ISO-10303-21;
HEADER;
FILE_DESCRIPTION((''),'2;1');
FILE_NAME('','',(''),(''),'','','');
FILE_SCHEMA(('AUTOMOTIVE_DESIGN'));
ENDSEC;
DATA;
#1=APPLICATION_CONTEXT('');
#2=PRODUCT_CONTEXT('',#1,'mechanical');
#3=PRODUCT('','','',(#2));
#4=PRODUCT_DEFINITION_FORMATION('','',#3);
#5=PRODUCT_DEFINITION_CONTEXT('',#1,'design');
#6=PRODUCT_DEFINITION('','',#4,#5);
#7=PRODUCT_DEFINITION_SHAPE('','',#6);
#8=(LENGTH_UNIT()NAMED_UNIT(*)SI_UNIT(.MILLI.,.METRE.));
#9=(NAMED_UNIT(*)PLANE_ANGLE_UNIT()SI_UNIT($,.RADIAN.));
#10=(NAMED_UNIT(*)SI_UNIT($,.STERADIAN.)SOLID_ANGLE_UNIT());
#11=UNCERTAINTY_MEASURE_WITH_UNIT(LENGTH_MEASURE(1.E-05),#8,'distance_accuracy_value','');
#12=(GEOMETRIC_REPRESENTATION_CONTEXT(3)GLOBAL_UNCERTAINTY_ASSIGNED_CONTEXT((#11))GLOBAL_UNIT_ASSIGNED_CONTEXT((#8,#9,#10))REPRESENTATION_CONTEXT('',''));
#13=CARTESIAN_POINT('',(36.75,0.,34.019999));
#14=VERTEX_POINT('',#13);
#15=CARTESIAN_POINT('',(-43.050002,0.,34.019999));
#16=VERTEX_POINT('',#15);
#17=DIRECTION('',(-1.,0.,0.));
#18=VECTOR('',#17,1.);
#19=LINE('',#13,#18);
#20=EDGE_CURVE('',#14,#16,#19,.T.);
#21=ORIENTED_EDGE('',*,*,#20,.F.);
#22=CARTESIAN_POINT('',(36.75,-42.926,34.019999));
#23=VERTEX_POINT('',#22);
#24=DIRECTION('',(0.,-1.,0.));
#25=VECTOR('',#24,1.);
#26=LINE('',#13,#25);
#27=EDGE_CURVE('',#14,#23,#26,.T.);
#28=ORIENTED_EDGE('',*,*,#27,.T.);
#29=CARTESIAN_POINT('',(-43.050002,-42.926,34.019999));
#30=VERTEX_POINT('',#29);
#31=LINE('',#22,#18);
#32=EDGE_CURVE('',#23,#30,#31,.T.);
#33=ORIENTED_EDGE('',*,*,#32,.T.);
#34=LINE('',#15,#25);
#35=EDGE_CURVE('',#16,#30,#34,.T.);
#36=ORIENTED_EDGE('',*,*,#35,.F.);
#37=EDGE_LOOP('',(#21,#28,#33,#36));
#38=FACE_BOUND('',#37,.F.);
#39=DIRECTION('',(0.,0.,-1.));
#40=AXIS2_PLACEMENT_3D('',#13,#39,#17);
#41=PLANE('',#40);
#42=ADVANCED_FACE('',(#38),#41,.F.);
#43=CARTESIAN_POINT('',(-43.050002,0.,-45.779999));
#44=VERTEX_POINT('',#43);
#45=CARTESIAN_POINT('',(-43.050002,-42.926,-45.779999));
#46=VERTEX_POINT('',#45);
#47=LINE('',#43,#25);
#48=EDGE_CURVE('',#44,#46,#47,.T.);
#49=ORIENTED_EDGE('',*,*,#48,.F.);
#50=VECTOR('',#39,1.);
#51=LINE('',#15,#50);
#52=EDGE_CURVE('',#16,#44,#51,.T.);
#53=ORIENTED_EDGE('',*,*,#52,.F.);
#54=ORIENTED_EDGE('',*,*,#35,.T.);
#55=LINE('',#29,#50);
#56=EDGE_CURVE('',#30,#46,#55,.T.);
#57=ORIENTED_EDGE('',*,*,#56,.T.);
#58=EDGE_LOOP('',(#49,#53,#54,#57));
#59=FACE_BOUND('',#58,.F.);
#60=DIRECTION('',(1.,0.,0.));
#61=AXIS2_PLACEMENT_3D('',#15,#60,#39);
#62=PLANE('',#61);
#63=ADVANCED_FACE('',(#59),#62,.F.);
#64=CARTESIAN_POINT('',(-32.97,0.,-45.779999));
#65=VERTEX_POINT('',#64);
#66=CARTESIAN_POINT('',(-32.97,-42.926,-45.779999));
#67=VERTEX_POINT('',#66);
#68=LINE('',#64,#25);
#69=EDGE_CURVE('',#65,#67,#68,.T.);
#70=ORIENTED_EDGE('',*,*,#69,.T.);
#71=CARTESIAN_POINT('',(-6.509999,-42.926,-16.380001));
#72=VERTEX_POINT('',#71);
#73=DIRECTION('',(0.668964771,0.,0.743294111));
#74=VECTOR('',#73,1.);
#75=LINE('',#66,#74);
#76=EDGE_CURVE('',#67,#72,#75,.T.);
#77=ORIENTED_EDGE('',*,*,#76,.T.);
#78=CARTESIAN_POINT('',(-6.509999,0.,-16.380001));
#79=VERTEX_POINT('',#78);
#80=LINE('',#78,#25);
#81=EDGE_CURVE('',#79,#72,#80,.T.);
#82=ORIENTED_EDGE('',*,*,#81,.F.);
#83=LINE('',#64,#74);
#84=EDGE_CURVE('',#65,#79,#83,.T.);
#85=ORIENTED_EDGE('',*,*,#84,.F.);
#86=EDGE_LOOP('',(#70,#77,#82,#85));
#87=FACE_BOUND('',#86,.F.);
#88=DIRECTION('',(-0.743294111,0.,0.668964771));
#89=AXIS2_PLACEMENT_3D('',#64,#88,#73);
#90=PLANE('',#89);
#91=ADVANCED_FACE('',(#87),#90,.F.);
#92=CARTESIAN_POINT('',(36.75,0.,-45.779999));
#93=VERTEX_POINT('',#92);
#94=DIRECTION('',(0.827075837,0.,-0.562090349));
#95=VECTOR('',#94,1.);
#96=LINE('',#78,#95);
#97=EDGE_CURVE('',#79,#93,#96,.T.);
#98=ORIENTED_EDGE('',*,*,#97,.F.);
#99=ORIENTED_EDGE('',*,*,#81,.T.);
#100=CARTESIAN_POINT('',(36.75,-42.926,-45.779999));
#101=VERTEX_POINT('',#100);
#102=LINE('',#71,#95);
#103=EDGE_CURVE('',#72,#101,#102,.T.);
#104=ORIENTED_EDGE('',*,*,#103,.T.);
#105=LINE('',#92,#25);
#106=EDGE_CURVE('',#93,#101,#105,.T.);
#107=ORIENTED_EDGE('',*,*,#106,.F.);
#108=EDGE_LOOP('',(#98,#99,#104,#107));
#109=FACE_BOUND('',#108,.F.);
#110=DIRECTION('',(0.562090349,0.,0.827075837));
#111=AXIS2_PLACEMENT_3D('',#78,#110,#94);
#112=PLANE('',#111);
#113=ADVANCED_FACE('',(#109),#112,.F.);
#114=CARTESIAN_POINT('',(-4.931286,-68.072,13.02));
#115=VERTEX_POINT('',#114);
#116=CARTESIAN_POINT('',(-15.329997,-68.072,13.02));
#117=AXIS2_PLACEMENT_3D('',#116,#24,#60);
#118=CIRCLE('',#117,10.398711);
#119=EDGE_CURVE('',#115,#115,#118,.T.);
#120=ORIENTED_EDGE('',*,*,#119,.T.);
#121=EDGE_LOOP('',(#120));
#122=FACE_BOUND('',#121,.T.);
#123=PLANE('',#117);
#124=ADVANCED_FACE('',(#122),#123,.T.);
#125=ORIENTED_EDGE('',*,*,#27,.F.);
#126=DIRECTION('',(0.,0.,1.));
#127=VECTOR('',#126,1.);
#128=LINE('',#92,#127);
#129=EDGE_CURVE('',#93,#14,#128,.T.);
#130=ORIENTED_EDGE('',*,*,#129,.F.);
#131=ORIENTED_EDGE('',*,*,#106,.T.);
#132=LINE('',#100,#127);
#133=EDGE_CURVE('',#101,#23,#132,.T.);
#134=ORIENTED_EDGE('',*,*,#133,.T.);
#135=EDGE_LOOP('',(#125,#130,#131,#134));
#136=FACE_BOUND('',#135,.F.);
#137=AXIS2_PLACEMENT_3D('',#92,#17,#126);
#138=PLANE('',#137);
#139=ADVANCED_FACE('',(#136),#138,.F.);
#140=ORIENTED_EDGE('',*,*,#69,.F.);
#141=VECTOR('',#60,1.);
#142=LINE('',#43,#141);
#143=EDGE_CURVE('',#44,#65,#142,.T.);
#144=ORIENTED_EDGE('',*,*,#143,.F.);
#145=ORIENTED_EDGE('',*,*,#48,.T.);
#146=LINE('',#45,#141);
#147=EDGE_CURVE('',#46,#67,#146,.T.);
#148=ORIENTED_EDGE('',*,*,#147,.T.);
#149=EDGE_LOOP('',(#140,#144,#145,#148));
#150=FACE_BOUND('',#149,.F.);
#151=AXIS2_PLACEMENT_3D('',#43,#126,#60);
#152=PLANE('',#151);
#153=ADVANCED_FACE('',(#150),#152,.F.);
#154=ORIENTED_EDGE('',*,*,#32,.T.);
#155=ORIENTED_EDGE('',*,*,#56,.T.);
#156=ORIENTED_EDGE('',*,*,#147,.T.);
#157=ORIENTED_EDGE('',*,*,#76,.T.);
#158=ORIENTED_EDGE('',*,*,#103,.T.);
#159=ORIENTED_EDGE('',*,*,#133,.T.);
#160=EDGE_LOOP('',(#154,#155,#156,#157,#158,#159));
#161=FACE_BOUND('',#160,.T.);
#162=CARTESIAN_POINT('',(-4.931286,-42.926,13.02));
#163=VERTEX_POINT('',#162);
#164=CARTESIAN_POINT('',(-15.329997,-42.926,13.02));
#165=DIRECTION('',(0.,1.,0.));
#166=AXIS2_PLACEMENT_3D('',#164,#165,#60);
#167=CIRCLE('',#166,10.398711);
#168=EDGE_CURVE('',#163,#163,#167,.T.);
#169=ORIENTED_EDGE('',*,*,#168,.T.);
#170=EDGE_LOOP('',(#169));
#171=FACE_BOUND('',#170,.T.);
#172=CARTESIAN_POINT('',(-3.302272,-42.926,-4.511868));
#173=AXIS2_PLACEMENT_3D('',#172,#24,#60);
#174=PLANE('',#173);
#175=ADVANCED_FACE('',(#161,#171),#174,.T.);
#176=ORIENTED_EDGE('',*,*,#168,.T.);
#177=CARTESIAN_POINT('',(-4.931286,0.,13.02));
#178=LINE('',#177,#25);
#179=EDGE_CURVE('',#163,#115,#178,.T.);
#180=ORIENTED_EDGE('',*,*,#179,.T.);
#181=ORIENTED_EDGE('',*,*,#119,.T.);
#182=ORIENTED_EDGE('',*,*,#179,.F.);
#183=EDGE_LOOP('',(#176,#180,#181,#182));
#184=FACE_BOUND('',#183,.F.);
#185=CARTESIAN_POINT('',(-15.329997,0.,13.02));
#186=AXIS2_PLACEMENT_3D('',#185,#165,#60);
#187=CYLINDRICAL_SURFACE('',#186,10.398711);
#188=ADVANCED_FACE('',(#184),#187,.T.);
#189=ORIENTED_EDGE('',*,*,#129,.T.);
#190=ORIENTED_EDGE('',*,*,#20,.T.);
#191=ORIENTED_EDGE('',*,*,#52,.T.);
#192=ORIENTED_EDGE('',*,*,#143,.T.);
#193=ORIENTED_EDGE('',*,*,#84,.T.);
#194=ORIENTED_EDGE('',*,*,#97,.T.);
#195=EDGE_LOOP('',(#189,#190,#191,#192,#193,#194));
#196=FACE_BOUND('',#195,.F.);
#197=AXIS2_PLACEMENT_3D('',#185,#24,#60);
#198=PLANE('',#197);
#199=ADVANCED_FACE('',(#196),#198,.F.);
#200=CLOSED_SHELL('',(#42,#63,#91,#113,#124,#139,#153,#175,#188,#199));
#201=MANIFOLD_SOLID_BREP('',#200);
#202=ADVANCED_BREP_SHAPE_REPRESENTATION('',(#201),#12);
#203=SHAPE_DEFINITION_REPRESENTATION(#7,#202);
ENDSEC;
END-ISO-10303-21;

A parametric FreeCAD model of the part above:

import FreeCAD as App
import Part
import Sketcher
Q = App.Units.Quantity

doc = App.newDocument("Part")
body = doc.addObject("PartDesign::Body", "Body")

# Sketch on XZ plane
sketch1 = body.newObject("Sketcher::SketchObject", "Sketch")
sketch1.AttachmentSupport = (doc.getObject("XZ_Plane"), [""])
sketch1.MapMode = "FlatFace"
sketch1.addGeometry([
    Part.LineSegment(App.Vector(37, 34, 0), App.Vector(-43, 34, 0)),  # 0
    Part.LineSegment(App.Vector(-43, 34, 0), App.Vector(-43, -46, 0)),  # 1
    Part.LineSegment(App.Vector(-43, -46, 0), App.Vector(-33, -46, 0)),  # 2
    Part.LineSegment(App.Vector(-33, -46, 0), App.Vector(-7, -16, 0)),  # 3
    Part.LineSegment(App.Vector(-7, -16, 0), App.Vector(37, -46, 0)),  # 4
    Part.LineSegment(App.Vector(37, -46, 0), App.Vector(37, 34, 0)),  # 5
], False)
sketch1.addConstraint([
    Sketcher.Constraint("Coincident", 0, 2, 1, 1),
    Sketcher.Constraint("Coincident", 1, 2, 2, 1),
    Sketcher.Constraint("Coincident", 2, 2, 3, 1),
    Sketcher.Constraint("Coincident", 3, 2, 4, 1),
    Sketcher.Constraint("Coincident", 4, 2, 5, 1),
    Sketcher.Constraint("Coincident", 5, 2, 0, 1),
    Sketcher.Constraint("Horizontal", 0),
    Sketcher.Constraint("Vertical", 1),
    Sketcher.Constraint("Horizontal", 2),
    Sketcher.Constraint("Vertical", 5),
    Sketcher.Constraint("Horizontal", 2, 2, 4, 2),
    Sketcher.Constraint("DistanceY", -1, 1, 0, 2, 34.019999),
    Sketcher.Constraint("DistanceY", 1, 2, -1, 1, 45.779999),
    Sketcher.Constraint("DistanceX", 2, 2, -1, 1, 32.97),
    Sketcher.Constraint("DistanceX", 3, 2, -1, 1, 6.509999),
    Sketcher.Constraint("DistanceY", 3, 2, -1, 1, 16.380001),
    Sketcher.Constraint("DistanceX", -1, 1, 4, 2, 36.75),
    Sketcher.Constraint("DistanceX", 0, 2, 0, 1, 79.800002),
])
pad1 = body.newObject("PartDesign::Pad", "Pad")
pad1.Profile = sketch1
pad1.Length = Q("1.69 in")

# Sketch on XZ plane
sketch2 = body.newObject("Sketcher::SketchObject", "Sketch001")
sketch2.AttachmentSupport = (doc.getObject("XZ_Plane"), [""])
sketch2.MapMode = "FlatFace"
sketch2.addGeometry(Part.Circle(App.Vector(-15, 13, 0), App.Vector(0, 0, 1), 10), False)
sketch2.addConstraint([
    Sketcher.Constraint("Diameter", 0, 20.797422),
    Sketcher.Constraint("DistanceY", -1, 1, 0, 3, 13.02),
    Sketcher.Constraint("DistanceX", 0, 3, -1, 1, 15.329997),
])
pad2 = body.newObject("PartDesign::Pad", "Pad001")
pad2.Profile = sketch2
pad2.Length = Q("2.68 in")

doc.recompute()
